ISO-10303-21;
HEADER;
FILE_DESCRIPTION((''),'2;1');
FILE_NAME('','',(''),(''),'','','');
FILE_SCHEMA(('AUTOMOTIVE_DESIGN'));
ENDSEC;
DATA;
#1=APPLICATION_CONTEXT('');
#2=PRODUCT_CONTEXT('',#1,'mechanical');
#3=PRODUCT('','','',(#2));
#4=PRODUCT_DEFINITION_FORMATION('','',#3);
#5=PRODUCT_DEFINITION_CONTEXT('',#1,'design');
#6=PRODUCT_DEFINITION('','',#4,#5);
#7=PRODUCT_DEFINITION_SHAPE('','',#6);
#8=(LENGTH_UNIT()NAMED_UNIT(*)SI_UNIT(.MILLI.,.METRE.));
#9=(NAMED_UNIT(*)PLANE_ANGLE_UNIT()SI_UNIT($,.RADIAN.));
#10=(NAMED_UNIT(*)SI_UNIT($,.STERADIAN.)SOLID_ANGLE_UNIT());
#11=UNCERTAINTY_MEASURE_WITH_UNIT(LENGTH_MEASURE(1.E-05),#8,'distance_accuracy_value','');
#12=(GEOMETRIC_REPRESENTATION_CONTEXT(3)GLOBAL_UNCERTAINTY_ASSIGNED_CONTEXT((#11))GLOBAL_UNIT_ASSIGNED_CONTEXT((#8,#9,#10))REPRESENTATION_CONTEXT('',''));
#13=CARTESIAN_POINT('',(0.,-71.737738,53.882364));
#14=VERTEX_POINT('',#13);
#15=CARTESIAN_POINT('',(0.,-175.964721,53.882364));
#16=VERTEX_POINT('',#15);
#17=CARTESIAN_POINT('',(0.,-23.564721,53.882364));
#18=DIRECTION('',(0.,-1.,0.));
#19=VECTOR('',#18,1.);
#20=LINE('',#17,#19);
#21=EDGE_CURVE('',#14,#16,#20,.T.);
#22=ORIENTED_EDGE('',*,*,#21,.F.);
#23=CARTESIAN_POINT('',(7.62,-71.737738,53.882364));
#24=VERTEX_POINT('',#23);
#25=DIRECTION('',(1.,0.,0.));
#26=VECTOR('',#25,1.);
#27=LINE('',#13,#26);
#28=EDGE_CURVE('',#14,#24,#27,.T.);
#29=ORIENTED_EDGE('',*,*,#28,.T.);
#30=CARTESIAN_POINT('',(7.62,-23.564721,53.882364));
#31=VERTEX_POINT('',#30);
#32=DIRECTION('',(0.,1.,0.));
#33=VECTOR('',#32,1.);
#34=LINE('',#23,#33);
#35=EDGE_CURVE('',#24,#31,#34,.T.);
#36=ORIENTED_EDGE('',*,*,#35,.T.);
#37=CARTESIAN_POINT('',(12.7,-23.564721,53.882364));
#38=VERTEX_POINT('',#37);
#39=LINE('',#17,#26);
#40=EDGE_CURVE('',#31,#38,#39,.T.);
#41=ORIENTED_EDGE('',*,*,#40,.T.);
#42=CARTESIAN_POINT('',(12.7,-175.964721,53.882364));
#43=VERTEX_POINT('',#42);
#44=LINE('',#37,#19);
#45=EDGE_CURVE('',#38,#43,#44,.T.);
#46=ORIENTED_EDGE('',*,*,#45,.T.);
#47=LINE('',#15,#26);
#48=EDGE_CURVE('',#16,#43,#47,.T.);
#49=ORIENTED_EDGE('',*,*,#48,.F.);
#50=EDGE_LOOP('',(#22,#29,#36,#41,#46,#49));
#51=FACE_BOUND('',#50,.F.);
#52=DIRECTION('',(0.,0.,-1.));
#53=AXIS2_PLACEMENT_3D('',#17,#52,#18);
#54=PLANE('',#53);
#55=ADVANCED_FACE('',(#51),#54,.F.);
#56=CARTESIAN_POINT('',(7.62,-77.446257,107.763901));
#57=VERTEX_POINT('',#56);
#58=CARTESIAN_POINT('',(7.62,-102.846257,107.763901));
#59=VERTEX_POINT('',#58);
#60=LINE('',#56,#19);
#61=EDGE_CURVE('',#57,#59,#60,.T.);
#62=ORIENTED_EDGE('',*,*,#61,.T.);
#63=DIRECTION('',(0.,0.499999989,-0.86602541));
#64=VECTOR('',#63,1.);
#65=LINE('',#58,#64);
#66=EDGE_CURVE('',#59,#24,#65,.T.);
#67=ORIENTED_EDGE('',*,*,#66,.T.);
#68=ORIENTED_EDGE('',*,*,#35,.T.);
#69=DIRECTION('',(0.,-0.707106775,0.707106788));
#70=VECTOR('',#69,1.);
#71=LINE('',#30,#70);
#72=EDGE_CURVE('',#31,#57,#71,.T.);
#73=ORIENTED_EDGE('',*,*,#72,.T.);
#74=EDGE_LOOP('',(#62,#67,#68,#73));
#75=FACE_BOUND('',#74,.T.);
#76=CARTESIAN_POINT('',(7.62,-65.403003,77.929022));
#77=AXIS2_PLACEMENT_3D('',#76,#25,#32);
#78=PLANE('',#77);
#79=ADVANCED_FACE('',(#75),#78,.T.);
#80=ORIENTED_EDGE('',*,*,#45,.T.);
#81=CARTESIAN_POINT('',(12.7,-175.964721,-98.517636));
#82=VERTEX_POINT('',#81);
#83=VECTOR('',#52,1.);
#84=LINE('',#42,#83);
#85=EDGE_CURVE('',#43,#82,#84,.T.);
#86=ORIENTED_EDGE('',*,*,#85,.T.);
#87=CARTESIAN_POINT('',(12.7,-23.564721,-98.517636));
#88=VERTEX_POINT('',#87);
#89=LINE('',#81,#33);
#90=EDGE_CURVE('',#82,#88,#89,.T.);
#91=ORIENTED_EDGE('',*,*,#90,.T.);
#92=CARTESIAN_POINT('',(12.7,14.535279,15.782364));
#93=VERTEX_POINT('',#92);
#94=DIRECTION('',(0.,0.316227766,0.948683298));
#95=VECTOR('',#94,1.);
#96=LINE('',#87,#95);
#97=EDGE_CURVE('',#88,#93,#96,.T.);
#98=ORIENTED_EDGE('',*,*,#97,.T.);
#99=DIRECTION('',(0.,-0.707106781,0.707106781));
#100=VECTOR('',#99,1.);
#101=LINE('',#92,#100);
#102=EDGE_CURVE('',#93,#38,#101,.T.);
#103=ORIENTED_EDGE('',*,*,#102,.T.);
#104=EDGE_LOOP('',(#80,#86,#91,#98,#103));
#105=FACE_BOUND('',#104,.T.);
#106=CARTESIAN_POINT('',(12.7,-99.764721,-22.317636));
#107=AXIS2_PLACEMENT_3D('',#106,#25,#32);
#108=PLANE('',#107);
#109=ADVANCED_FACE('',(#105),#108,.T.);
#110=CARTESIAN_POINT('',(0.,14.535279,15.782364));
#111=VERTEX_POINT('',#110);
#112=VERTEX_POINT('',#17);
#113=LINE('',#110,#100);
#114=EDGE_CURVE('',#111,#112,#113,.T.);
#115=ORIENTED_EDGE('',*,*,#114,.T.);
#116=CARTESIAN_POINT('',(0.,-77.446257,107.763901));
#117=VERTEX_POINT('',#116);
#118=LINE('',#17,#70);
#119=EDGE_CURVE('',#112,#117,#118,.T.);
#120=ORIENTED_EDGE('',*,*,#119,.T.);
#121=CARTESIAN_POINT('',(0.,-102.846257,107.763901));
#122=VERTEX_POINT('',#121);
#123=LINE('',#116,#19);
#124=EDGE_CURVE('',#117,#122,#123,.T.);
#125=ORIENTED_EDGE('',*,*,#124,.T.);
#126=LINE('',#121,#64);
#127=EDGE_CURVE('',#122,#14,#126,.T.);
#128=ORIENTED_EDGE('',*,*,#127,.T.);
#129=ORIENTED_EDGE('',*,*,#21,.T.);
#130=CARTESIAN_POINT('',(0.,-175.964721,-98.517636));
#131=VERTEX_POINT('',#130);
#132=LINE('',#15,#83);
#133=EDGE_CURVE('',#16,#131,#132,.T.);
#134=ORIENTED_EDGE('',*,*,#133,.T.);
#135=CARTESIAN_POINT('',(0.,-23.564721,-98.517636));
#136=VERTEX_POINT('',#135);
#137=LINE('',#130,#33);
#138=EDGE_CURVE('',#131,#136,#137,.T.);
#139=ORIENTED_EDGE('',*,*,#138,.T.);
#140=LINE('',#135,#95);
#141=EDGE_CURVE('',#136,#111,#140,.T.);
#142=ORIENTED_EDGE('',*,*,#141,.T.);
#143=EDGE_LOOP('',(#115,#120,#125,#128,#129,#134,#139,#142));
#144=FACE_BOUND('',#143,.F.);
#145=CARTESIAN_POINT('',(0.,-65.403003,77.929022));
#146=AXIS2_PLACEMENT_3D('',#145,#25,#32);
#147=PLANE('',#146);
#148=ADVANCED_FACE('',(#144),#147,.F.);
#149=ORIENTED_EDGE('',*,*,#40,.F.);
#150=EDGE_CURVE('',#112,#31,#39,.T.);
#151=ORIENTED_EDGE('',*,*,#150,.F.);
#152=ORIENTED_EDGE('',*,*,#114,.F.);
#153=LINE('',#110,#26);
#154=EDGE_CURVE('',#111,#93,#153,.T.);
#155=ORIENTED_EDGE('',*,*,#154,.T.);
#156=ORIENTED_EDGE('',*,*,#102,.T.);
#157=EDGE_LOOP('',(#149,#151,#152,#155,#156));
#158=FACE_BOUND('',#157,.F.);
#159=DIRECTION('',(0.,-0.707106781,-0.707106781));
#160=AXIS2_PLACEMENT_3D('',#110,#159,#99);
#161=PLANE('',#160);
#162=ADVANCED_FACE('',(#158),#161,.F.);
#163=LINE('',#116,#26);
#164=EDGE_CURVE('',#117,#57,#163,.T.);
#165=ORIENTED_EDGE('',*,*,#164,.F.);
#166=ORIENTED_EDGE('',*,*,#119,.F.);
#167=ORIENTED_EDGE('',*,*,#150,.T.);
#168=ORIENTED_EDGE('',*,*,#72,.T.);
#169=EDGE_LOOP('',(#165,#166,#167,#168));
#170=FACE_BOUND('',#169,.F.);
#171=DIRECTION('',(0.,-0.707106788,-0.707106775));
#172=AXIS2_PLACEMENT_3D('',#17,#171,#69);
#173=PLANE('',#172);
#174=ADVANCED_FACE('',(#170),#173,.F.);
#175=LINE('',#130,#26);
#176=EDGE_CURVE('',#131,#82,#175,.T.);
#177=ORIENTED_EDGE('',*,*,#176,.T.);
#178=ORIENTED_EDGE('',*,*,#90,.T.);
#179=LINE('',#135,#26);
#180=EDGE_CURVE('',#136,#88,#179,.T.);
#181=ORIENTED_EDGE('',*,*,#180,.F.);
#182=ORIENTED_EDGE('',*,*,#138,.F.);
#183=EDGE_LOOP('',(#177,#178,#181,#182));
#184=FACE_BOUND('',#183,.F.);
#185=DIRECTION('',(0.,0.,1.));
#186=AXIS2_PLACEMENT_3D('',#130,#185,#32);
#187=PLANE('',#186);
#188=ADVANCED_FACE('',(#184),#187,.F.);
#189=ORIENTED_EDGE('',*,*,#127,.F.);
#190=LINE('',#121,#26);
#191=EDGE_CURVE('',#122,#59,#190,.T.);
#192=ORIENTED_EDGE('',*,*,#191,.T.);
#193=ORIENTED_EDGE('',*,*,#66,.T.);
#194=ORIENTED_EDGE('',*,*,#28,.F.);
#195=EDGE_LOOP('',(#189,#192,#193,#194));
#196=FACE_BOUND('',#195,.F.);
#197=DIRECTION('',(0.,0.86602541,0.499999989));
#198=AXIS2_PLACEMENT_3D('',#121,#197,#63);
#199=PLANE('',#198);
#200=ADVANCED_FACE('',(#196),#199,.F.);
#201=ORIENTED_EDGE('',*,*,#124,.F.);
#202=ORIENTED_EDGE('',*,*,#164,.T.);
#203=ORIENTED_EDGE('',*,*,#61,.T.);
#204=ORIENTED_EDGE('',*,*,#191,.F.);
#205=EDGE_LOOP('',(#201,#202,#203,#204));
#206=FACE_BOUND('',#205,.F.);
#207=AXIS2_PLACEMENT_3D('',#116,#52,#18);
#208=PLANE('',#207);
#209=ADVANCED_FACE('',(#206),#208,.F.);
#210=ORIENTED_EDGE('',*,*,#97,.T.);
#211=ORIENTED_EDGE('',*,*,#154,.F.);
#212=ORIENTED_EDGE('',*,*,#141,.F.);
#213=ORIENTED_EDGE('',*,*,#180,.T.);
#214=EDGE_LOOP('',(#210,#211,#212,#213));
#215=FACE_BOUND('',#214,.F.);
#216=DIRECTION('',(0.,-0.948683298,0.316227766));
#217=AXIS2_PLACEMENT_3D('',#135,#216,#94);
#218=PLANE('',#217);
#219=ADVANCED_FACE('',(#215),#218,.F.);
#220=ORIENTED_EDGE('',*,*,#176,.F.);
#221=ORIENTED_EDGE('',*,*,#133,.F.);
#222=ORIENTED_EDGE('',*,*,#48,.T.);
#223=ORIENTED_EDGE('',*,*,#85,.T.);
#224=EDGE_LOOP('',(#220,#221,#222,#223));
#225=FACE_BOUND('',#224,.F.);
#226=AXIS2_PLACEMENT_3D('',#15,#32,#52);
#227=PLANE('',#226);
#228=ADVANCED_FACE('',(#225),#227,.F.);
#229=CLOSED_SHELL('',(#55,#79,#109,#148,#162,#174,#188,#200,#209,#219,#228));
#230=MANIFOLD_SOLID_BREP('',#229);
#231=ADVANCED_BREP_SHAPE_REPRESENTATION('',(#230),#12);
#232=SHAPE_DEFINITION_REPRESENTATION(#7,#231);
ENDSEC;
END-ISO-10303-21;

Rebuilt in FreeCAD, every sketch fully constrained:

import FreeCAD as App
import Part
import Sketcher

V = App.Vector
Q = App.Units.Quantity


def add_polygon(sketch, points):
    """Adds a closed chain of lines whose ends are joined by coincident constraints."""
    first, n = sketch.GeometryCount, len(points)
    for a, b in zip(points, points[1:] + points[:1]):
        sketch.addGeometry(Part.LineSegment(App.Vector(*a, 0), App.Vector(*b, 0)), False)
    for i in range(n):
        sketch.addConstraint(Sketcher.Constraint("Coincident", first + i, 2, first + (i + 1) % n, 1))

doc = App.newDocument("Part")
body = doc.addObject("PartDesign::Body", "Body")

sketch1 = doc.addObject("Sketcher::SketchObject", "Sketch")
body.addObject(sketch1)
sketch1.AttachmentSupport = (doc.YZ_Plane, [""])
sketch1.MapMode = "FlatFace"
add_polygon(sketch1, [(-24, 54), (-176, 54), (-176, -99), (-24, -99), (15, 16)])
sketch1.addConstraint([
    Sketcher.Constraint("Horizontal", 0),
    Sketcher.Constraint("Vertical", 1),
    Sketcher.Constraint("Horizontal", 2),
    Sketcher.Constraint("Vertical", 2, 2, 4, 2),
    Sketcher.Constraint("Equal", 2, 1),
    Sketcher.Constraint("DistanceX", 0, 2, 0, 1, Q("6 in")),
    Sketcher.Constraint("Angle", 4, Q("135 deg")),
    Sketcher.Constraint("DistanceX", 2, 2, 3, 2, Q("1.5 in")),
    Sketcher.Constraint("DistanceX", 0, 2, -1, 1, 175.964721),
    Sketcher.Constraint("DistanceY", -1, 1, 0, 2, 53.882364),
])
pad1 = doc.addObject("PartDesign::Pad", "Pad")
body.addObject(pad1)
pad1.Profile = sketch1
pad1.Length = Q("0.5 in")

sketch2 = doc.addObject("Sketcher::SketchObject", "Sketch001")
body.addObject(sketch2)
sketch2.AttachmentSupport = (doc.YZ_Plane, [""])
sketch2.MapMode = "FlatFace"
add_polygon(sketch2, [(-72, 54), (-24, 54), (-77, 108), (-103, 108)])
sketch2.addConstraint([
    Sketcher.Constraint("Horizontal", 0),
    Sketcher.Constraint("Horizontal", 2),
    Sketcher.Constraint("DistanceX", 2, 2, 2, 1, Q("1 in")),
    Sketcher.Constraint("Distance", 1, Q("3 in")),
    Sketcher.Constraint("Angle", 1, Q("134.999999 deg")),
    Sketcher.Constraint("Angle", 3, Q("-60.000001 deg")),
    Sketcher.Constraint("DistanceY", -1, 1, 1, 2, 107.763901),
    Sketcher.Constraint("DistanceX", 0, 2, -1, 1, 23.564721),
])
pad2 = doc.addObject("PartDesign::Pad", "Pad001")
body.addObject(pad2)
pad2.Profile = sketch2
pad2.Length = Q("0.3 in")

doc.recompute()
